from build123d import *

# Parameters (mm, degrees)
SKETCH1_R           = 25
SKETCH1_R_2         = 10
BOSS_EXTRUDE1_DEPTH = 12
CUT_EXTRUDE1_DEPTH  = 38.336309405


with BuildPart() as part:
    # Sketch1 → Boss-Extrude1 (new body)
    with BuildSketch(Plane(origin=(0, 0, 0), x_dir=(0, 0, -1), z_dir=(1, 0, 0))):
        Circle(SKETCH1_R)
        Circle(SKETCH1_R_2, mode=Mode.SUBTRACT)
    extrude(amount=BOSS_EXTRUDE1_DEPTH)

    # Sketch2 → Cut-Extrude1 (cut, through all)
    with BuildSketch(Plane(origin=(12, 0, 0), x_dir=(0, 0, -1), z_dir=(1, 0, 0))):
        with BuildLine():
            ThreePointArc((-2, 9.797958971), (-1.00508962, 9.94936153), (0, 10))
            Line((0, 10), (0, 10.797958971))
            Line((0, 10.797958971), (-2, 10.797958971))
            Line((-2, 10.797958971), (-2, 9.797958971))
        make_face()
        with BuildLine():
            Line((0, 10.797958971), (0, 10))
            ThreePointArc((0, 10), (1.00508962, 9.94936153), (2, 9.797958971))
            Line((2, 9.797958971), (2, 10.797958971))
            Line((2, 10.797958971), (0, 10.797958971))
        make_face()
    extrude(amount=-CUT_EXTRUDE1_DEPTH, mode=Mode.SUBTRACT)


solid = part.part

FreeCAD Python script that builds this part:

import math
import FreeCAD as App
import Part
import Sketcher

V = App.Vector
Q = App.Units.Quantity

doc = App.newDocument("Part")
body = doc.addObject("PartDesign::Body", "Body")

# Sketch on YZ plane
sketch1 = body.newObject("Sketcher::SketchObject", "Sketch")
sketch1.AttachmentSupport = (doc.getObject("YZ_Plane"), [""])
sketch1.MapMode = "FlatFace"
sketch1.addGeometry(Part.Circle(V(0, 0, 0), V(0, 0, 1), 25), False)
sketch1.addGeometry(Part.Circle(V(0, 0, 0), V(0, 0, 1), 10), False)
sketch1.addConstraint(Sketcher.Constraint("Coincident", 0, 3, -1, 1))
sketch1.addConstraint(Sketcher.Constraint("Coincident", 1, 3, -1, 1))
sketch1.addConstraint(Sketcher.Constraint("Diameter", 0, Q("50 mm")))
sketch1.addConstraint(Sketcher.Constraint("Diameter", 1, Q("20 mm")))
pad1 = body.newObject("PartDesign::Pad", "Pad")
pad1.Profile = sketch1
pad1.Length = 12

# Sketch on YZ plane
sketch2 = body.newObject("Sketcher::SketchObject", "Sketch001")
sketch2.AttachmentSupport = (doc.getObject("YZ_Plane"), [""])
sketch2.MapMode = "FlatFace"
sketch2.AttachmentOffset = App.Placement(V(0, 0, 12), App.Rotation())
sketch2.addGeometry(Part.ArcOfCircle(Part.Circle(V(0, 0, 0), V(0, 0, 1), 10), math.radians(0), math.radians(11.54)), False)
sketch2.addGeometry(Part.ArcOfCircle(Part.Circle(V(0, 0, 0), V(0, 0, 1), 10), math.radians(-11.54), math.radians(0)), False)
sketch2.addGeometry(Part.LineSegment(V(9.8, -2, 0), V(10.8, -2, 0)), False)
sketch2.addGeometry(Part.LineSegment(V(10.8, -2, 0), V(10.8, 2, 0)), False)
sketch2.addGeometry(Part.LineSegment(V(10.8, 2, 0), V(9.8, 2, 0)), False)
sketch2.addConstraint(Sketcher.Constraint("Tangent", 0, 1, 1, 2))
sketch2.addConstraint(Sketcher.Constraint("Coincident", 1, 1, 2, 1))
sketch2.addConstraint(Sketcher.Constraint("Coincident", 2, 2, 3, 1))
sketch2.addConstraint(Sketcher.Constraint("Coincident", 3, 2, 4, 1))
sketch2.addConstraint(Sketcher.Constraint("Coincident", 4, 2, 0, 2))
sketch2.addConstraint(Sketcher.Constraint("Horizontal", 2))
sketch2.addConstraint(Sketcher.Constraint("Vertical", 3))
sketch2.addConstraint(Sketcher.Constraint("Horizontal", 4))
sketch2.addConstraint(Sketcher.Constraint("Coincident", 0, 3, -1, 1))
sketch2.addConstraint(Sketcher.Constraint("Equal", 0, 1))
sketch2.addConstraint(Sketcher.Constraint("PointOnObject", 0, 1, -1))
sketch2.addConstraint(Sketcher.Constraint("Vertical", 1, 1, 4, 2))
sketch2.addConstraint(Sketcher.Constraint("Radius", 0, Q("10 mm")))
sketch2.addConstraint(Sketcher.Constraint("DistanceX", 2, 1, 2, 2, Q("1 mm")))
sketch2.addConstraint(Sketcher.Constraint("DistanceY", 3, 1, 3, 2, Q("4 mm")))
pocket1 = body.newObject("PartDesign::Pocket", "Pocket")
pocket1.Profile = sketch2
pocket1.Type = "ThroughAll"

doc.recompute()
